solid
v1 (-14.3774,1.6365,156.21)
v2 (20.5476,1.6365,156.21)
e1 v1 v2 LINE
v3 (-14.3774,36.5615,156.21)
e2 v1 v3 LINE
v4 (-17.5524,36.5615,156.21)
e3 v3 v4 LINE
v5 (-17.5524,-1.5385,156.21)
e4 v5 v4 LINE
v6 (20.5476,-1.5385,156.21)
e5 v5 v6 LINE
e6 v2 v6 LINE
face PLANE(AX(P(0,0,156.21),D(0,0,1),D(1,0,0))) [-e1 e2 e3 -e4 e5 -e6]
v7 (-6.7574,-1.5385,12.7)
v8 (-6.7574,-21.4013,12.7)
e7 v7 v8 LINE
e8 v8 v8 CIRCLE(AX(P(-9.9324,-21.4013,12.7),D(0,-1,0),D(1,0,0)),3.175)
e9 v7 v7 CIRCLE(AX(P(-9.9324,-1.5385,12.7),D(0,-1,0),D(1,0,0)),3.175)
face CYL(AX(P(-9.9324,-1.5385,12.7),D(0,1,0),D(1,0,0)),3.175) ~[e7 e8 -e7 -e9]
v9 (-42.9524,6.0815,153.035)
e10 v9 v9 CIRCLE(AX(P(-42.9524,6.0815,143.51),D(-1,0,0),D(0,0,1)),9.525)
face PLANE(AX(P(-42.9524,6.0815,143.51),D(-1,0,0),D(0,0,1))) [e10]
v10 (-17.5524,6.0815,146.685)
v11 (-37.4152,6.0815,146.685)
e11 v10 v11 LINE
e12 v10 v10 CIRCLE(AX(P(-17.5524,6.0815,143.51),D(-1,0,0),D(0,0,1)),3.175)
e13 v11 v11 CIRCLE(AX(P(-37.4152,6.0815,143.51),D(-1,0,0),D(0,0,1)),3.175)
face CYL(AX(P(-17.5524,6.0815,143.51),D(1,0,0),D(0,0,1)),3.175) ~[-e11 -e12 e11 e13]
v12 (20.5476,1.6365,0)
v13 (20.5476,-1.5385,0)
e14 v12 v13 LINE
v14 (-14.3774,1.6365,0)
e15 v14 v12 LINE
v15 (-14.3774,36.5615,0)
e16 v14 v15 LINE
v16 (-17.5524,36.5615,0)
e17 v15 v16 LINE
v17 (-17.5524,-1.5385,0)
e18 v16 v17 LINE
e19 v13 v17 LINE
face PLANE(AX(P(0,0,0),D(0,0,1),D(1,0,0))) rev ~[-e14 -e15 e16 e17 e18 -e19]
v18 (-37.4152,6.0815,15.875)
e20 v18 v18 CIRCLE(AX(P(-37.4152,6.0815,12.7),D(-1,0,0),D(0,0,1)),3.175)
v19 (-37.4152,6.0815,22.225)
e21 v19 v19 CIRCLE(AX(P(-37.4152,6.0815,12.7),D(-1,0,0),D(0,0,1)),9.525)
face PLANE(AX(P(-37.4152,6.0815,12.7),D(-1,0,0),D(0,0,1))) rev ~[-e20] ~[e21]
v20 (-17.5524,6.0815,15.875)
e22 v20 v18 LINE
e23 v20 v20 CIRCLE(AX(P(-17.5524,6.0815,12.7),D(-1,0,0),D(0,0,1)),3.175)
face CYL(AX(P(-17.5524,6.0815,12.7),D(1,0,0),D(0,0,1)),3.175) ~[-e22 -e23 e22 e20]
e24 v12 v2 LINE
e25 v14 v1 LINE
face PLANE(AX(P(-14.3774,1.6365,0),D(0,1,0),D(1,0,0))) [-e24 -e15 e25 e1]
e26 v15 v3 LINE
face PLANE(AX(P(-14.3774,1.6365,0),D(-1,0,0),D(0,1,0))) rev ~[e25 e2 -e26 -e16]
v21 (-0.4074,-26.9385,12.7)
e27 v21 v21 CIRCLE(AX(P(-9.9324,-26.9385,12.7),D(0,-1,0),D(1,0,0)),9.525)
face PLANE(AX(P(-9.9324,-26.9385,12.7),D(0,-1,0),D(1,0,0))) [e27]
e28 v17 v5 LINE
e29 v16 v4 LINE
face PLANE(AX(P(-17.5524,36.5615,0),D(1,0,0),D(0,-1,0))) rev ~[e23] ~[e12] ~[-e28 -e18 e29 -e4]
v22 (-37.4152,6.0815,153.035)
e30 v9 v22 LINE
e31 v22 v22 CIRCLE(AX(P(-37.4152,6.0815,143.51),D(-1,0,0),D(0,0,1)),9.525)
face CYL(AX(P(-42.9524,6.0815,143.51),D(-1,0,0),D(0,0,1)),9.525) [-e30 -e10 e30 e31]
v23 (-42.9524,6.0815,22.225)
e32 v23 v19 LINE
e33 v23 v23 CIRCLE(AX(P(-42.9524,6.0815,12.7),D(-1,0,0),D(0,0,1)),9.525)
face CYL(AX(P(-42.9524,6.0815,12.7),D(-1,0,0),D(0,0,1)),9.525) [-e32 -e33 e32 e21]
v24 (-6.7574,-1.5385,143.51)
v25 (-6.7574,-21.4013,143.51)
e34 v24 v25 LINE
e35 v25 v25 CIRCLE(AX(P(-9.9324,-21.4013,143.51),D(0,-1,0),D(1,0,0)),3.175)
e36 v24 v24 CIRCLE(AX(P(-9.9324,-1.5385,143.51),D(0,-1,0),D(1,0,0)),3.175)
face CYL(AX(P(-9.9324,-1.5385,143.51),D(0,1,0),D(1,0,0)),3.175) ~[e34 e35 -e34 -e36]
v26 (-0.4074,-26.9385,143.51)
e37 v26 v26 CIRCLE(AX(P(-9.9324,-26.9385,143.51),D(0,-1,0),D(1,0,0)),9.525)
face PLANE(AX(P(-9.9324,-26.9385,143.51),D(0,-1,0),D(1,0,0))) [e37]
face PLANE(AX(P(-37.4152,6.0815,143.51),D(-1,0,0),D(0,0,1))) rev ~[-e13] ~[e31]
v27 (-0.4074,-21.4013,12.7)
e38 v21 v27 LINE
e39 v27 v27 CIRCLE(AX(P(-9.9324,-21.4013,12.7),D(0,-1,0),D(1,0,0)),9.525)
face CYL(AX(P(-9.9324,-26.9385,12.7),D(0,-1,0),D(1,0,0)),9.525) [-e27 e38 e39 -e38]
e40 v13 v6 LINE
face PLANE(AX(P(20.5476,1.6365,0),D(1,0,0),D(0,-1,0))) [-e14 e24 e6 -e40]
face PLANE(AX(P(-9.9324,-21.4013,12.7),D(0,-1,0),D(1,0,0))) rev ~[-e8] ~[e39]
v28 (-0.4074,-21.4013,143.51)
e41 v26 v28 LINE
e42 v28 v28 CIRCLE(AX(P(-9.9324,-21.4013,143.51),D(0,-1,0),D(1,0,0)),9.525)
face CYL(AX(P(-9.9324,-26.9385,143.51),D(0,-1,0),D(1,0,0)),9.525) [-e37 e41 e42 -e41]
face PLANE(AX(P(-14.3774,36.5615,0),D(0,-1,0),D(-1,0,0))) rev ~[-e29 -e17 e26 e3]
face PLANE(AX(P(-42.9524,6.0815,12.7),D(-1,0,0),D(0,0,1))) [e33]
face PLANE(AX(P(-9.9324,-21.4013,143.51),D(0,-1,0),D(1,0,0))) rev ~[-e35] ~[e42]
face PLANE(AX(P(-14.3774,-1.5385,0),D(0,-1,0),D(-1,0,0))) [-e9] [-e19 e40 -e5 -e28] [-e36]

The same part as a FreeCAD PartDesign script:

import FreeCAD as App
import Part
import Sketcher

V = App.Vector
Q = App.Units.Quantity


def add_polygon(sketch, points):
    """Adds a closed chain of lines whose ends are joined by coincident constraints."""
    first, n = sketch.GeometryCount, len(points)
    for a, b in zip(points, points[1:] + points[:1]):
        sketch.addGeometry(Part.LineSegment(App.Vector(*a, 0), App.Vector(*b, 0)), False)
    for i in range(n):
        sketch.addConstraint(Sketcher.Constraint("Coincident", first + i, 2, first + (i + 1) % n, 1))

doc = App.newDocument("Part")
params = doc.addObject("Spreadsheet::Sheet", "Params")
for row, (alias, value) in enumerate([
    ("sketch1_width", "1.5 in"),
    ("sketch1_width2", "0.125 in"),
    ("pad1_length", "6.15 in"),
    ("sketch2_diameter", "0.25 in"),
    ("pad2_length", "1 in"),
    ("sketch3_diameter", "0.25 in"),
    ("pad3_length", "1 in"),
    ("sketch4_diameter", "0.75 in"),
    ("sketch4_diameter2", "0.25 in"),
    ("pad4_length", "0.218 in"),
    ("sketch5_diameter", "0.75 in"),
    ("sketch5_diameter2", "0.25 in"),
    ("pad5_length", "0.218 in"),
    ("sketch6_diameter", "0.75 in"),
    ("sketch6_diameter2", "0.25 in"),
    ("pad6_length", "0.218 in"),
    ("sketch7_diameter", "0.75 in"),
    ("sketch7_diameter2", "0.25 in"),
    ("pad7_length", "0.218 in"),
], start=1):
    params.set(f"A{row}", alias)
    params.set(f"B{row}", "=" + value)
    params.setAlias(f"B{row}", alias)

body = doc.addObject("PartDesign::Body", "Body")

# Sketch on XY plane
sketch1 = body.newObject("Sketcher::SketchObject", "Sketch")
sketch1.AttachmentSupport = (doc.getObject("XY_Plane"), [""])
sketch1.MapMode = "FlatFace"
add_polygon(sketch1, [(-17.6, 36.6), (-17.6, -1.5), (20.5, -1.5), (20.5, 1.6), (-14.4, 1.6), (-14.4, 36.6)])  # lines 0-5
sketch1.addConstraint([
    Sketcher.Constraint("Vertical", 0),
    Sketcher.Constraint("Horizontal", 1),
    Sketcher.Constraint("Vertical", 2),
    Sketcher.Constraint("Horizontal", 3),
    Sketcher.Constraint("Vertical", 4),
    Sketcher.Constraint("Horizontal", 5),
    Sketcher.Constraint("Equal", 1, 0),
    Sketcher.Constraint("Equal", 5, 2),
    Sketcher.Constraint("DistanceX", 1, 1, 1, 2, Q("1.5 in")),
    Sketcher.Constraint("DistanceX", 5, 2, 5, 1, Q("0.125 in")),
    Sketcher.Constraint("DistanceX", 0, 2, -1, 1, 17.5524),
    Sketcher.Constraint("DistanceY", 0, 2, -1, 1, 1.5385),
])
sketch1.setExpression("Constraints[14]", "Params.sketch1_width")
sketch1.setExpression("Constraints[15]", "Params.sketch1_width2")
pad1 = body.newObject("PartDesign::Pad", "Pad")
pad1.Profile = sketch1
pad1.setExpression("Length", "Params.pad1_length")

# Sketch on YZ plane
sketch2 = body.newObject("Sketcher::SketchObject", "Sketch001")
sketch2.AttachmentSupport = (doc.getObject("YZ_Plane"), [""])
sketch2.MapMode = "FlatFace"
sketch2.AttachmentOffset = App.Placement(V(0, 0, -17.5524), App.Rotation())
sketch2.addGeometry([
    Part.Circle(V(6.1, 12.7, 0), V(0, 0, 1), 3.2),
    Part.Circle(V(6.1, 143.5, 0), V(0, 0, 1), 3.2),
], False)
sketch2.addConstraint([
    Sketcher.Constraint("Equal", 0, 1),
    Sketcher.Constraint("Vertical", 0, 3, 1, 3),
    Sketcher.Constraint("Diameter", 0, Q("0.25 in")),
    Sketcher.Constraint("DistanceY", -1, 1, 0, 3, Q("0.5 in")),
    Sketcher.Constraint("DistanceY", -1, 1, 1, 3, Q("5.65 in")),
    Sketcher.Constraint("DistanceX", -1, 1, 0, 3, 6.0815),
])
sketch2.setExpression("Constraints[2]", "Params.sketch2_diameter")
pad2 = body.newObject("PartDesign::Pad", "Pad001")
pad2.Profile = sketch2
pad2.setExpression("Length", "Params.pad2_length")
pad2.Reversed = True

# Sketch on XZ plane
sketch3 = body.newObject("Sketcher::SketchObject", "Sketch002")
sketch3.AttachmentSupport = (doc.getObject("XZ_Plane"), [""])
sketch3.MapMode = "FlatFace"
sketch3.AttachmentOffset = App.Placement(V(0, 0, 1.5385), App.Rotation())
sketch3.addGeometry([
    Part.Circle(V(-9.9, 143.5, 0), V(0, 0, 1), 3.2),
    Part.Circle(V(-9.9, 12.7, 0), V(0, 0, 1), 3.2),
], False)
sketch3.addConstraint([
    Sketcher.Constraint("Equal", 0, 1),
    Sketcher.Constraint("Vertical", 0, 3, 1, 3),
    Sketcher.Constraint("Diameter", 0, Q("0.25 in")),
    Sketcher.Constraint("DistanceY", -1, 1, 1, 3, Q("0.5 in")),
    Sketcher.Constraint("DistanceY", -1, 1, 0, 3, Q("5.65 in")),
    Sketcher.Constraint("DistanceX", 0, 3, -1, 1, 9.9324),
])
sketch3.setExpression("Constraints[2]", "Params.sketch3_diameter")
pad3 = body.newObject("PartDesign::Pad", "Pad002")
pad3.Profile = sketch3
pad3.setExpression("Length", "Params.pad3_length")

# Sketch on YZ plane
sketch4 = body.newObject("Sketcher::SketchObject", "Sketch003")
sketch4.AttachmentSupport = (doc.getObject("YZ_Plane"), [""])
sketch4.MapMode = "FlatFace"
sketch4.AttachmentOffset = App.Placement(V(0, 0, -42.9524), App.Rotation())
sketch4.addGeometry([
    Part.Circle(V(6.1, 143.5, 0), V(0, 0, 1), 9.5),
    Part.Circle(V(6.1, 143.5, 0), V(0, 0, 1), 3.2),
], False)
sketch4.addConstraint([
    Sketcher.Constraint("Coincident", 1, 3, 0, 3),
    Sketcher.Constraint("Diameter", 0, Q("0.75 in")),
    Sketcher.Constraint("Diameter", 1, Q("0.25 in")),
    Sketcher.Constraint("DistanceY", -1, 1, 0, 3, Q("5.65 in")),
    Sketcher.Constraint("DistanceX", -1, 1, 0, 3, 6.0815),
])
sketch4.setExpression("Constraints[1]", "Params.sketch4_diameter")
sketch4.setExpression("Constraints[2]", "Params.sketch4_diameter2")
pad4 = body.newObject("PartDesign::Pad", "Pad003")
pad4.Profile = sketch4
pad4.setExpression("Length", "Params.pad4_length")

# Sketch on YZ plane
sketch5 = body.newObject("Sketcher::SketchObject", "Sketch004")
sketch5.AttachmentSupport = (doc.getObject("YZ_Plane"), [""])
sketch5.MapMode = "FlatFace"
sketch5.AttachmentOffset = App.Placement(V(0, 0, -42.9524), App.Rotation())
sketch5.addGeometry([
    Part.Circle(V(6.1, 12.7, 0), V(0, 0, 1), 9.5),
    Part.Circle(V(6.1, 12.7, 0), V(0, 0, 1), 3.2),
], False)
sketch5.addConstraint([
    Sketcher.Constraint("Coincident", 1, 3, 0, 3),
    Sketcher.Constraint("Diameter", 0, Q("0.75 in")),
    Sketcher.Constraint("Diameter", 1, Q("0.25 in")),
    Sketcher.Constraint("DistanceY", -1, 1, 0, 3, Q("0.5 in")),
    Sketcher.Constraint("DistanceX", -1, 1, 0, 3, 6.0815),
])
sketch5.setExpression("Constraints[1]", "Params.sketch5_diameter")
sketch5.setExpression("Constraints[2]", "Params.sketch5_diameter2")
pad5 = body.newObject("PartDesign::Pad", "Pad004")
pad5.Profile = sketch5
pad5.setExpression("Length", "Params.pad5_length")

# Sketch on XZ plane
sketch6 = body.newObject("Sketcher::SketchObject", "Sketch005")
sketch6.AttachmentSupport = (doc.getObject("XZ_Plane"), [""])
sketch6.MapMode = "FlatFace"
sketch6.AttachmentOffset = App.Placement(V(0, 0, 26.9385), App.Rotation())
sketch6.addGeometry([
    Part.Circle(V(-9.9, 143.5, 0), V(0, 0, 1), 9.5),
    Part.Circle(V(-9.9, 143.5, 0), V(0, 0, 1), 3.2),
], False)
sketch6.addConstraint([
    Sketcher.Constraint("Coincident", 1, 3, 0, 3),
    Sketcher.Constraint("Diameter", 0, Q("0.75 in")),
    Sketcher.Constraint("Diameter", 1, Q("0.25 in")),
    Sketcher.Constraint("DistanceY", -1, 1, 0, 3, Q("5.65 in")),
    Sketcher.Constraint("DistanceX", 0, 3, -1, 1, 9.9324),
])
sketch6.setExpression("Constraints[1]", "Params.sketch6_diameter")
sketch6.setExpression("Constraints[2]", "Params.sketch6_diameter2")
pad6 = body.newObject("PartDesign::Pad", "Pad005")
pad6.Profile = sketch6
pad6.setExpression("Length", "Params.pad6_length")
pad6.Reversed = True

# Sketch on XZ plane
sketch7 = body.newObject("Sketcher::SketchObject", "Sketch006")
sketch7.AttachmentSupport = (doc.getObject("XZ_Plane"), [""])
sketch7.MapMode = "FlatFace"
sketch7.AttachmentOffset = App.Placement(V(0, 0, 26.9385), App.Rotation())
sketch7.addGeometry([
    Part.Circle(V(-9.9, 12.7, 0), V(0, 0, 1), 9.5),
    Part.Circle(V(-9.9, 12.7, 0), V(0, 0, 1), 3.2),
], False)
sketch7.addConstraint([
    Sketcher.Constraint("Coincident", 1, 3, 0, 3),
    Sketcher.Constraint("Diameter", 0, Q("0.75 in")),
    Sketcher.Constraint("Diameter", 1, Q("0.25 in")),
    Sketcher.Constraint("DistanceY", -1, 1, 0, 3, Q("0.5 in")),
    Sketcher.Constraint("DistanceX", 0, 3, -1, 1, 9.9324),
])
sketch7.setExpression("Constraints[1]", "Params.sketch7_diameter")
sketch7.setExpression("Constraints[2]", "Params.sketch7_diameter2")
pad7 = body.newObject("PartDesign::Pad", "Pad006")
pad7.Profile = sketch7
pad7.setExpression("Length", "Params.pad7_length")
pad7.Reversed = True

doc.recompute()
